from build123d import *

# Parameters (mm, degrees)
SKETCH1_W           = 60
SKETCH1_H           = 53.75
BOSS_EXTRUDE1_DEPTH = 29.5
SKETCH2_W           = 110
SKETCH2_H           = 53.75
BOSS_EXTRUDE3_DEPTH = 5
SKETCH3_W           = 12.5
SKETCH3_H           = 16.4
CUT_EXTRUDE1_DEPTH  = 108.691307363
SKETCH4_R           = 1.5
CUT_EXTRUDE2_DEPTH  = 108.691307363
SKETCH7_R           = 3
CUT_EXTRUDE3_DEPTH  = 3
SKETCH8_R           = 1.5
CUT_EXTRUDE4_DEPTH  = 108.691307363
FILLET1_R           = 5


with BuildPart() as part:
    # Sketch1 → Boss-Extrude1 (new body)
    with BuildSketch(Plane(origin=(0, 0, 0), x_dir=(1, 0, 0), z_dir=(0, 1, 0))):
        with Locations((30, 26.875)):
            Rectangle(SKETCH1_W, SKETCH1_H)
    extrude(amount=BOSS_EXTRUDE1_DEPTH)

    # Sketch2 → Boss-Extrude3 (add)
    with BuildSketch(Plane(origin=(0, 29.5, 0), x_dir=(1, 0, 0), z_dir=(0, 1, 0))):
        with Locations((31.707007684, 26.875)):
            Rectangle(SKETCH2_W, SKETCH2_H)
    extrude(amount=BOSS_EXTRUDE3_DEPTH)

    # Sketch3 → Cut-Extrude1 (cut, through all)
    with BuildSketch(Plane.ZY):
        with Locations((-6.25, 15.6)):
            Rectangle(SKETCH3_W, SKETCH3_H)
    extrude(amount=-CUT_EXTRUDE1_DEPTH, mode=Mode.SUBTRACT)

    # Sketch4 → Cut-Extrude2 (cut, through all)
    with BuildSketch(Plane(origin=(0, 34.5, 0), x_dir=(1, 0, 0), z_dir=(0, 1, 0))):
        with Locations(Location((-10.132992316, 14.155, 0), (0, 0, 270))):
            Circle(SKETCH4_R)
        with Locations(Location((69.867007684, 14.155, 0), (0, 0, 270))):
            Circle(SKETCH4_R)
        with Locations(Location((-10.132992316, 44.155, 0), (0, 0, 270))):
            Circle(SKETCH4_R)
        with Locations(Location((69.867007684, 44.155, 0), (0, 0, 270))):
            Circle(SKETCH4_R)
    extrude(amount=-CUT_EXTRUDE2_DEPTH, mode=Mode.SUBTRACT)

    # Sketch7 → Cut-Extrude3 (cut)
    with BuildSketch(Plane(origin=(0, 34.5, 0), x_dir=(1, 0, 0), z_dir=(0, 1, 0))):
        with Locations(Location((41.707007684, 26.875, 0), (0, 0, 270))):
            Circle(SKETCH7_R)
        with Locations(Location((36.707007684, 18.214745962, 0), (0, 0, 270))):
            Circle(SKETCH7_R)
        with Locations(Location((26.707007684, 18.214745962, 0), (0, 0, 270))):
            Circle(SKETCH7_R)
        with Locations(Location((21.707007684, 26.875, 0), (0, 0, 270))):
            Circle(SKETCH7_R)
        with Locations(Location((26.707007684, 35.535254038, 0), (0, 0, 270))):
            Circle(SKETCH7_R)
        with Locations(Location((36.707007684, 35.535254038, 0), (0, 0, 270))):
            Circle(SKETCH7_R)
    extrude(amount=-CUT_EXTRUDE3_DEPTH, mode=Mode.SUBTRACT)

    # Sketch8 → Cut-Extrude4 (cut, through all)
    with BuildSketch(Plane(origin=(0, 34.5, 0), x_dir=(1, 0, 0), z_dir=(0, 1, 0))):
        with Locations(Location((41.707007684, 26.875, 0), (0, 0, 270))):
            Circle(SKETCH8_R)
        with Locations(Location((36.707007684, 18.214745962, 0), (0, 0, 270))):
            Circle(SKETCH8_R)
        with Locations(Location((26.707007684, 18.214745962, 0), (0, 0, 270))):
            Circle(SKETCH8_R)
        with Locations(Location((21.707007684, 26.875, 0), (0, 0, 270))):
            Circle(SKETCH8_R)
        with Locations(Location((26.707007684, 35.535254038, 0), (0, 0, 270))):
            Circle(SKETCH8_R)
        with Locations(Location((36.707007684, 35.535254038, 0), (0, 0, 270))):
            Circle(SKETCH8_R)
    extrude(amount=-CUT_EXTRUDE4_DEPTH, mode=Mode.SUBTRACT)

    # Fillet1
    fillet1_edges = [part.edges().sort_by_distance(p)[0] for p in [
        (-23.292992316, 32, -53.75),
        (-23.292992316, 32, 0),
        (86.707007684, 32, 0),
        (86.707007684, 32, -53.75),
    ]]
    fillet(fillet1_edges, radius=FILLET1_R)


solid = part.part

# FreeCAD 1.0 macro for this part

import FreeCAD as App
import Part
import Sketcher
from FreeCAD import Vector
Q = App.Units.Quantity


def edges_at(feature, points):
    """Names of the edges that pass closest to the given points."""
    edges = feature.Shape.Edges
    near = lambda p: min(range(len(edges)), key=lambda i: edges[i].distToShape(Part.Vertex(*p))[0])
    return sorted({f"Edge{near(p) + 1}" for p in points})


def add_polygon(sketch, points):
    """Adds a closed chain of lines whose ends are joined by coincident constraints."""
    first, n = sketch.GeometryCount, len(points)
    for a, b in zip(points, points[1:] + points[:1]):
        sketch.addGeometry(Part.LineSegment(App.Vector(*a, 0), App.Vector(*b, 0)), False)
    for i in range(n):
        sketch.addConstraint(Sketcher.Constraint("Coincident", first + i, 2, first + (i + 1) % n, 1))

doc = App.newDocument("Part")
params = doc.addObject("Spreadsheet::Sheet", "Params")
for row, (alias, value) in enumerate([
    ("sketch1_width", "60 mm"),
    ("sketch1_height", "53.75 mm"),
    ("pad1_length", "29.5 mm"),
    ("sketch2_width", "110 mm"),
    ("sketch2_height", "53.75 mm"),
    ("pad2_length", "5 mm"),
    ("sketch3_width", "16.4 mm"),
    ("sketch3_height", "12.5 mm"),
    ("sketch4_diameter", "3 mm"),
    ("sketch5_diameter", "6 mm"),
    ("pocket3_length", "3 mm"),
    ("sketch6_diameter", "3 mm"),
    ("fillet_radius", "5 mm"),
], start=1):
    params.set(f"A{row}", alias)
    params.set(f"B{row}", "=" + value)
    params.setAlias(f"B{row}", alias)

body = doc.addObject("PartDesign::Body", "Body")

# Sketch on XZ plane
sketch1 = body.newObject("Sketcher::SketchObject", "Sketch")
sketch1.AttachmentSupport = (doc.getObject("XZ_Plane"), [""])
sketch1.MapMode = "FlatFace"
add_polygon(sketch1, [(0, -53.75), (0, 0), (60, 0), (60, -53.75)])  # lines 0-3
sketch1.addConstraint(Sketcher.Constraint("Vertical", 0))
sketch1.addConstraint(Sketcher.Constraint("Horizontal", 1))
sketch1.addConstraint(Sketcher.Constraint("Vertical", 2))
sketch1.addConstraint(Sketcher.Constraint("Horizontal", 3))
sketch1.addConstraint(Sketcher.Constraint("Coincident", 0, 2, -1, 1))
sketch1.addConstraint(Sketcher.Constraint("DistanceX", 1, 1, 1, 2, Q("60 mm")))
sketch1.addConstraint(Sketcher.Constraint("DistanceY", 0, 1, 0, 2, Q("53.75 mm")))
sketch1.setExpression("Constraints[9]", "Params.sketch1_width")
sketch1.setExpression("Constraints[10]", "Params.sketch1_height")
pad1 = body.newObject("PartDesign::Pad", "Pad")
pad1.Profile = sketch1
pad1.setExpression("Length", "Params.pad1_length")
pad1.Reversed = True

# Sketch on XZ plane
sketch2 = body.newObject("Sketcher::SketchObject", "Sketch001")
sketch2.AttachmentSupport = (doc.getObject("XZ_Plane"), [""])
sketch2.MapMode = "FlatFace"
sketch2.AttachmentOffset = App.Placement(Vector(0, 0, -29.5), App.Rotation())
add_polygon(sketch2, [(-23.292992, -53.75), (-23.292992, 0), (86.707008, 0), (86.707008, -53.75)])  # lines 0-3
sketch2.addConstraint(Sketcher.Constraint("Vertical", 0))
sketch2.addConstraint(Sketcher.Constraint("Horizontal", 1))
sketch2.addConstraint(Sketcher.Constraint("Vertical", 2))
sketch2.addConstraint(Sketcher.Constraint("Horizontal", 3))
sketch2.addConstraint(Sketcher.Constraint("PointOnObject", 0, 2, -1))
sketch2.addConstraint(Sketcher.Constraint("DistanceX", 1, 1, 1, 2, Q("110 mm")))
sketch2.addConstraint(Sketcher.Constraint("DistanceY", 0, 1, 0, 2, Q("53.75 mm")))
sketch2.addConstraint(Sketcher.Constraint("DistanceX", 0, 2, -1, 1, Q("23.292992 mm")))
sketch2.setExpression("Constraints[9]", "Params.sketch2_width")
sketch2.setExpression("Constraints[10]", "Params.sketch2_height")
pad2 = body.newObject("PartDesign::Pad", "Pad001")
pad2.Profile = sketch2
pad2.setExpression("Length", "Params.pad2_length")
pad2.Reversed = True

# Sketch on YZ plane
sketch3 = body.newObject("Sketcher::SketchObject", "Sketch002")
sketch3.AttachmentSupport = (doc.getObject("YZ_Plane"), [""])
sketch3.MapMode = "FlatFace"
add_polygon(sketch3, [(23.8, -12.5), (7.4, -12.5), (7.4, 0), (23.8, 0)])  # lines 0-3
sketch3.addConstraint(Sketcher.Constraint("Horizontal", 0))
sketch3.addConstraint(Sketcher.Constraint("Vertical", 1))
sketch3.addConstraint(Sketcher.Constraint("Horizontal", 2))
sketch3.addConstraint(Sketcher.Constraint("Vertical", 3))
sketch3.addConstraint(Sketcher.Constraint("PointOnObject", 1, 2, -1))
sketch3.addConstraint(Sketcher.Constraint("DistanceX", 0, 2, 0, 1, Q("16.4 mm")))
sketch3.addConstraint(Sketcher.Constraint("DistanceY", 1, 1, 1, 2, Q("12.5 mm")))
sketch3.addConstraint(Sketcher.Constraint("DistanceX", -1, 1, 0, 2, Q("7.4 mm")))
sketch3.setExpression("Constraints[9]", "Params.sketch3_width")
sketch3.setExpression("Constraints[10]", "Params.sketch3_height")
pocket1 = body.newObject("PartDesign::Pocket", "Pocket")
pocket1.Profile = sketch3
pocket1.Type = "ThroughAll"
pocket1.Reversed = True

# Sketch on XZ plane
sketch4 = body.newObject("Sketcher::SketchObject", "Sketch003")
sketch4.AttachmentSupport = (doc.getObject("XZ_Plane"), [""])
sketch4.MapMode = "FlatFace"
sketch4.AttachmentOffset = App.Placement(Vector(0, 0, -34.5), App.Rotation())
sketch4.addGeometry(Part.Circle(Vector(-10.132992, -14.155, 0), Vector(0, 0, 1), 1.5), False)
sketch4.addGeometry(Part.Circle(Vector(69.867008, -14.155, 0), Vector(0, 0, 1), 1.5), False)
sketch4.addGeometry(Part.Circle(Vector(-10.132992, -44.155, 0), Vector(0, 0, 1), 1.5), False)
sketch4.addGeometry(Part.Circle(Vector(69.867008, -44.155, 0), Vector(0, 0, 1), 1.5), False)
sketch4.addConstraint(Sketcher.Constraint("Equal", 0, 1))
sketch4.addConstraint(Sketcher.Constraint("Equal", 1, 2))
sketch4.addConstraint(Sketcher.Constraint("Equal", 2, 3))
sketch4.addConstraint(Sketcher.Constraint("Horizontal", 0, 3, 1, 3))
sketch4.addConstraint(Sketcher.Constraint("Horizontal", 2, 3, 3, 3))
sketch4.addConstraint(Sketcher.Constraint("Vertical", 0, 3, 2, 3))
sketch4.addConstraint(Sketcher.Constraint("Vertical", 1, 3, 3, 3))
sketch4.addConstraint(Sketcher.Constraint("Diameter", 0, Q("3 mm")))
sketch4.addConstraint(Sketcher.Constraint("DistanceX", 0, 3, 1, 3, Q("80 mm")))
sketch4.addConstraint(Sketcher.Constraint("DistanceY", 2, 3, 0, 3, Q("30 mm")))
sketch4.addConstraint(Sketcher.Constraint("DistanceY", 0, 3, -1, 1, Q("14.155 mm")))
sketch4.addConstraint(Sketcher.Constraint("DistanceX", 0, 3, -1, 1, Q("10.132992 mm")))
sketch4.setExpression("Constraints[7]", "Params.sketch4_diameter")
pocket2 = body.newObject("PartDesign::Pocket", "Pocket001")
pocket2.Profile = sketch4
pocket2.Type = "ThroughAll"
pocket2.Reversed = True

# Sketch on XZ plane
sketch5 = body.newObject("Sketcher::SketchObject", "Sketch004")
sketch5.AttachmentSupport = (doc.getObject("XZ_Plane"), [""])
sketch5.MapMode = "FlatFace"
sketch5.AttachmentOffset = App.Placement(Vector(0, 0, -34.5), App.Rotation())
sketch5.addGeometry(Part.Circle(Vector(41.707008, -26.875, 0), Vector(0, 0, 1), 3), False)
sketch5.addGeometry(Part.Circle(Vector(36.707008, -18.214746, 0), Vector(0, 0, 1), 3), False)
sketch5.addGeometry(Part.Circle(Vector(26.707008, -18.214746, 0), Vector(0, 0, 1), 3), False)
sketch5.addGeometry(Part.Circle(Vector(21.707008, -26.875, 0), Vector(0, 0, 1), 3), False)
sketch5.addGeometry(Part.Circle(Vector(26.707008, -35.535254, 0), Vector(0, 0, 1), 3), False)
sketch5.addGeometry(Part.Circle(Vector(36.707008, -35.535254, 0), Vector(0, 0, 1), 3), False)
sketch5.addConstraint(Sketcher.Constraint("Equal", 0, 1))
sketch5.addConstraint(Sketcher.Constraint("Equal", 1, 2))
sketch5.addConstraint(Sketcher.Constraint("Equal", 2, 3))
sketch5.addConstraint(Sketcher.Constraint("Equal", 3, 4))
sketch5.addConstraint(Sketcher.Constraint("Equal", 4, 5))
sketch5.addConstraint(Sketcher.Constraint("Horizontal", 1, 3, 2, 3))
sketch5.addConstraint(Sketcher.Constraint("Horizontal", 0, 3, 3, 3))
sketch5.addConstraint(Sketcher.Constraint("Horizontal", 4, 3, 5, 3))
sketch5.addConstraint(Sketcher.Constraint("Vertical", 2, 3, 4, 3))
sketch5.addConstraint(Sketcher.Constraint("Vertical", 1, 3, 5, 3))
sketch5.addConstraint(Sketcher.Constraint("Diameter", 0, Q("6 mm")))
sketch5.addConstraint(Sketcher.Constraint("DistanceX", 1, 3, 0, 3, Q("5 mm")))
sketch5.addConstraint(Sketcher.Constraint("DistanceX", 2, 3, 1, 3, Q("10 mm")))
sketch5.addConstraint(Sketcher.Constraint("DistanceX", 3, 3, 2, 3, Q("5 mm")))
sketch5.addConstraint(Sketcher.Constraint("DistanceY", 0, 3, -1, 1, Q("26.875 mm")))
sketch5.addConstraint(Sketcher.Constraint("DistanceY", 4, 3, 2, 3, Q("17.320508 mm")))
sketch5.addConstraint(Sketcher.Constraint("DistanceX", -1, 1, 0, 3, Q("41.707008 mm")))
sketch5.addConstraint(Sketcher.Constraint("DistanceY", 1, 3, -1, 1, Q("18.214746 mm")))
sketch5.setExpression("Constraints[10]", "Params.sketch5_diameter")
pocket3 = body.newObject("PartDesign::Pocket", "Pocket002")
pocket3.Profile = sketch5
pocket3.setExpression("Length", "Params.pocket3_length")
pocket3.Reversed = True

# Sketch on XZ plane
sketch6 = body.newObject("Sketcher::SketchObject", "Sketch005")
sketch6.AttachmentSupport = (doc.getObject("XZ_Plane"), [""])
sketch6.MapMode = "FlatFace"
sketch6.AttachmentOffset = App.Placement(Vector(0, 0, -34.5), App.Rotation())
sketch6.addGeometry(Part.Circle(Vector(41.707008, -26.875, 0), Vector(0, 0, 1), 1.5), False)
sketch6.addGeometry(Part.Circle(Vector(36.707008, -18.214746, 0), Vector(0, 0, 1), 1.5), False)
sketch6.addGeometry(Part.Circle(Vector(26.707008, -18.214746, 0), Vector(0, 0, 1), 1.5), False)
sketch6.addGeometry(Part.Circle(Vector(21.707008, -26.875, 0), Vector(0, 0, 1), 1.5), False)
sketch6.addGeometry(Part.Circle(Vector(26.707008, -35.535254, 0), Vector(0, 0, 1), 1.5), False)
sketch6.addGeometry(Part.Circle(Vector(36.707008, -35.535254, 0), Vector(0, 0, 1), 1.5), False)
sketch6.addConstraint(Sketcher.Constraint("Equal", 0, 1))
sketch6.addConstraint(Sketcher.Constraint("Equal", 1, 2))
sketch6.addConstraint(Sketcher.Constraint("Equal", 2, 3))
sketch6.addConstraint(Sketcher.Constraint("Equal", 3, 4))
sketch6.addConstraint(Sketcher.Constraint("Equal", 4, 5))
sketch6.addConstraint(Sketcher.Constraint("Horizontal", 1, 3, 2, 3))
sketch6.addConstraint(Sketcher.Constraint("Horizontal", 0, 3, 3, 3))
sketch6.addConstraint(Sketcher.Constraint("Horizontal", 4, 3, 5, 3))
sketch6.addConstraint(Sketcher.Constraint("Vertical", 2, 3, 4, 3))
sketch6.addConstraint(Sketcher.Constraint("Vertical", 1, 3, 5, 3))
sketch6.addConstraint(Sketcher.Constraint("Diameter", 0, Q("3 mm")))
sketch6.addConstraint(Sketcher.Constraint("DistanceX", 1, 3, 0, 3, Q("5 mm")))
sketch6.addConstraint(Sketcher.Constraint("DistanceX", 2, 3, 1, 3, Q("10 mm")))
sketch6.addConstraint(Sketcher.Constraint("DistanceX", 3, 3, 2, 3, Q("5 mm")))
sketch6.addConstraint(Sketcher.Constraint("DistanceY", 0, 3, -1, 1, Q("26.875 mm")))
sketch6.addConstraint(Sketcher.Constraint("DistanceY", 4, 3, 2, 3, Q("17.320508 mm")))
sketch6.addConstraint(Sketcher.Constraint("DistanceX", -1, 1, 0, 3, Q("41.707008 mm")))
sketch6.addConstraint(Sketcher.Constraint("DistanceY", 1, 3, -1, 1, Q("18.214746 mm")))
sketch6.setExpression("Constraints[10]", "Params.sketch6_diameter")
pocket4 = body.newObject("PartDesign::Pocket", "Pocket003")
pocket4.Profile = sketch6
pocket4.Type = "ThroughAll"
pocket4.Reversed = True
doc.recompute()

fillet = body.newObject("PartDesign::Fillet", "Fillet")
fillet.Base = (pocket4, edges_at(pocket4, [
    (-23.293, 32, -53.75),
    (-23.293, 32, 0),
    (86.707, 32, 0),
    (86.707, 32, -53.75),
]))
fillet.setExpression("Radius", "Params.fillet_radius")

doc.recompute()
